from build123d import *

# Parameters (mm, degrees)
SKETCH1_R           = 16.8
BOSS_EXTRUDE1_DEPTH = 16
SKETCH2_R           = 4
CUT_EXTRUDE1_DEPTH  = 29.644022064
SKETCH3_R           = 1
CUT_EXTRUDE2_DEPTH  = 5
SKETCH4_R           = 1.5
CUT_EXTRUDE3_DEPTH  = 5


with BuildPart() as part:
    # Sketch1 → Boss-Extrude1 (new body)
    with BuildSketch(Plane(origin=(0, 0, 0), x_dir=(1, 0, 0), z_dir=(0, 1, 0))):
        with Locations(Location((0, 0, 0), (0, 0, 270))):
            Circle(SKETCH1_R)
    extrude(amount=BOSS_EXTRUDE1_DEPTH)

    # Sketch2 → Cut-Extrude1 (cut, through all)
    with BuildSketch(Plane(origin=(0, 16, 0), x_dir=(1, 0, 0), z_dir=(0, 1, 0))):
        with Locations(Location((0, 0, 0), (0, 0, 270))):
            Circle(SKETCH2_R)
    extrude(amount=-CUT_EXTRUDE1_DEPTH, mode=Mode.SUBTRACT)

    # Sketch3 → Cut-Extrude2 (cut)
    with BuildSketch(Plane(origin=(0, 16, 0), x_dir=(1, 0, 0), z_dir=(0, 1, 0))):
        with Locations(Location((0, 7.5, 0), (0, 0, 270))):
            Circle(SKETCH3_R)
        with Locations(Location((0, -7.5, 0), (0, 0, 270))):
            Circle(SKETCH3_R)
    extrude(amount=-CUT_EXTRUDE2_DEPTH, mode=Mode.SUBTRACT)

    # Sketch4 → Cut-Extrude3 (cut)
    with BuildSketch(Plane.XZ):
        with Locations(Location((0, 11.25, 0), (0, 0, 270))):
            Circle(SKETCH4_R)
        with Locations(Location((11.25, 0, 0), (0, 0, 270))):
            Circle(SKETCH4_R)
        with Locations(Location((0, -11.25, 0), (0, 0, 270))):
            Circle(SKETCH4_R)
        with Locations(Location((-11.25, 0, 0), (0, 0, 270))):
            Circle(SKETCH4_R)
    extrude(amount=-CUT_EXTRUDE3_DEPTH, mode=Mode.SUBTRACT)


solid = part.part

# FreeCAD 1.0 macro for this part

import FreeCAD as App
import Part
import Sketcher

doc = App.newDocument("Part")
params = doc.addObject("Spreadsheet::Sheet", "Params")
for row, (alias, value) in enumerate([
    ("sketch1_diameter", "33.6 mm"),
    ("pad1_length", "16 mm"),
    ("sketch2_diameter", "8 mm"),
    ("sketch3_diameter", "2 mm"),
    ("pocket2_length", "5 mm"),
    ("sketch4_diameter", "3 mm"),
    ("pocket3_length", "5 mm"),
], start=1):
    params.set(f"A{row}", alias)
    params.set(f"B{row}", "=" + value)
    params.setAlias(f"B{row}", alias)

body = doc.addObject("PartDesign::Body", "Body")

sketch1 = body.newObject("Sketcher::SketchObject", "Sketch")
sketch1.AttachmentSupport = (doc.getObject("XZ_Plane"), [""])
sketch1.MapMode = "FlatFace"
sketch1.addGeometry(Part.Circle(App.Vector(0, 0, 0), App.Vector(0, 0, 1), 17), False)
sketch1.addConstraint([
    Sketcher.Constraint("Coincident", 0, 3, -1, 1),
    Sketcher.Constraint("Diameter", 0, 33.6),
])
sketch1.setExpression("Constraints[1]", "Params.sketch1_diameter")
pad1 = body.newObject("PartDesign::Pad", "Pad")
pad1.Profile = sketch1
pad1.setExpression("Length", "Params.pad1_length")
pad1.Reversed = True

sketch2 = body.newObject("Sketcher::SketchObject", "Sketch001")
sketch2.AttachmentSupport = (doc.getObject("XZ_Plane"), [""])
sketch2.MapMode = "FlatFace"
sketch2.AttachmentOffset = App.Placement(App.Vector(0, 0, -16), App.Rotation())
sketch2.addGeometry(Part.Circle(App.Vector(0, 0, 0), App.Vector(0, 0, 1), 4), False)
sketch2.addConstraint([
    Sketcher.Constraint("Coincident", 0, 3, -1, 1),
    Sketcher.Constraint("Diameter", 0, 8.0),
])
sketch2.setExpression("Constraints[1]", "Params.sketch2_diameter")
pocket1 = body.newObject("PartDesign::Pocket", "Pocket")
pocket1.Profile = sketch2
pocket1.Type = "ThroughAll"
pocket1.Reversed = True

sketch3 = body.newObject("Sketcher::SketchObject", "Sketch002")
sketch3.AttachmentSupport = (doc.getObject("XZ_Plane"), [""])
sketch3.MapMode = "FlatFace"
sketch3.AttachmentOffset = App.Placement(App.Vector(0, 0, -16), App.Rotation())
sketch3.addGeometry([
    Part.Circle(App.Vector(0, -7.5, 0), App.Vector(0, 0, 1), 1),
    Part.Circle(App.Vector(0, 7.5, 0), App.Vector(0, 0, 1), 1),
], False)
sketch3.addConstraint([
    Sketcher.Constraint("Equal", 0, 1),
    Sketcher.Constraint("Symmetric", 0, 3, 1, 3, -1, 1),
    Sketcher.Constraint("PointOnObject", 0, 3, -2),
    Sketcher.Constraint("Diameter", 0, 2.0),
    Sketcher.Constraint("DistanceY", 0, 3, 1, 3, 15.0),
])
sketch3.setExpression("Constraints[3]", "Params.sketch3_diameter")
pocket2 = body.newObject("PartDesign::Pocket", "Pocket001")
pocket2.Profile = sketch3
pocket2.setExpression("Length", "Params.pocket2_length")
pocket2.Reversed = True

sketch4 = body.newObject("Sketcher::SketchObject", "Sketch003")
sketch4.AttachmentSupport = (doc.getObject("XZ_Plane"), [""])
sketch4.MapMode = "FlatFace"
sketch4.addGeometry([
    Part.Circle(App.Vector(0, 11.2, 0), App.Vector(0, 0, 1), 1.5),
    Part.Circle(App.Vector(11.2, 0, 0), App.Vector(0, 0, 1), 1.5),
    Part.Circle(App.Vector(0, -11.2, 0), App.Vector(0, 0, 1), 1.5),
    Part.Circle(App.Vector(-11.2, 0, 0), App.Vector(0, 0, 1), 1.5),
], False)
sketch4.addConstraint([
    Sketcher.Constraint("Equal", 0, 1),
    Sketcher.Constraint("Equal", 1, 2),
    Sketcher.Constraint("Equal", 2, 3),
    Sketcher.Constraint("Symmetric", 0, 3, 2, 3, -1, 1),
    Sketcher.Constraint("Symmetric", 1, 3, 3, 3, -1, 1),
    Sketcher.Constraint("PointOnObject", 0, 3, -2),
    Sketcher.Constraint("PointOnObject", 1, 3, -1),
    Sketcher.Constraint("Diameter", 0, 3.0),
    Sketcher.Constraint("DistanceY", 2, 3, 0, 3, 22.5),
    Sketcher.Constraint("DistanceX", 3, 3, 1, 3, 22.5),
])
sketch4.setExpression("Constraints[7]", "Params.sketch4_diameter")
pocket3 = body.newObject("PartDesign::Pocket", "Pocket002")
pocket3.Profile = sketch4
pocket3.setExpression("Length", "Params.pocket3_length")

doc.recompute()
